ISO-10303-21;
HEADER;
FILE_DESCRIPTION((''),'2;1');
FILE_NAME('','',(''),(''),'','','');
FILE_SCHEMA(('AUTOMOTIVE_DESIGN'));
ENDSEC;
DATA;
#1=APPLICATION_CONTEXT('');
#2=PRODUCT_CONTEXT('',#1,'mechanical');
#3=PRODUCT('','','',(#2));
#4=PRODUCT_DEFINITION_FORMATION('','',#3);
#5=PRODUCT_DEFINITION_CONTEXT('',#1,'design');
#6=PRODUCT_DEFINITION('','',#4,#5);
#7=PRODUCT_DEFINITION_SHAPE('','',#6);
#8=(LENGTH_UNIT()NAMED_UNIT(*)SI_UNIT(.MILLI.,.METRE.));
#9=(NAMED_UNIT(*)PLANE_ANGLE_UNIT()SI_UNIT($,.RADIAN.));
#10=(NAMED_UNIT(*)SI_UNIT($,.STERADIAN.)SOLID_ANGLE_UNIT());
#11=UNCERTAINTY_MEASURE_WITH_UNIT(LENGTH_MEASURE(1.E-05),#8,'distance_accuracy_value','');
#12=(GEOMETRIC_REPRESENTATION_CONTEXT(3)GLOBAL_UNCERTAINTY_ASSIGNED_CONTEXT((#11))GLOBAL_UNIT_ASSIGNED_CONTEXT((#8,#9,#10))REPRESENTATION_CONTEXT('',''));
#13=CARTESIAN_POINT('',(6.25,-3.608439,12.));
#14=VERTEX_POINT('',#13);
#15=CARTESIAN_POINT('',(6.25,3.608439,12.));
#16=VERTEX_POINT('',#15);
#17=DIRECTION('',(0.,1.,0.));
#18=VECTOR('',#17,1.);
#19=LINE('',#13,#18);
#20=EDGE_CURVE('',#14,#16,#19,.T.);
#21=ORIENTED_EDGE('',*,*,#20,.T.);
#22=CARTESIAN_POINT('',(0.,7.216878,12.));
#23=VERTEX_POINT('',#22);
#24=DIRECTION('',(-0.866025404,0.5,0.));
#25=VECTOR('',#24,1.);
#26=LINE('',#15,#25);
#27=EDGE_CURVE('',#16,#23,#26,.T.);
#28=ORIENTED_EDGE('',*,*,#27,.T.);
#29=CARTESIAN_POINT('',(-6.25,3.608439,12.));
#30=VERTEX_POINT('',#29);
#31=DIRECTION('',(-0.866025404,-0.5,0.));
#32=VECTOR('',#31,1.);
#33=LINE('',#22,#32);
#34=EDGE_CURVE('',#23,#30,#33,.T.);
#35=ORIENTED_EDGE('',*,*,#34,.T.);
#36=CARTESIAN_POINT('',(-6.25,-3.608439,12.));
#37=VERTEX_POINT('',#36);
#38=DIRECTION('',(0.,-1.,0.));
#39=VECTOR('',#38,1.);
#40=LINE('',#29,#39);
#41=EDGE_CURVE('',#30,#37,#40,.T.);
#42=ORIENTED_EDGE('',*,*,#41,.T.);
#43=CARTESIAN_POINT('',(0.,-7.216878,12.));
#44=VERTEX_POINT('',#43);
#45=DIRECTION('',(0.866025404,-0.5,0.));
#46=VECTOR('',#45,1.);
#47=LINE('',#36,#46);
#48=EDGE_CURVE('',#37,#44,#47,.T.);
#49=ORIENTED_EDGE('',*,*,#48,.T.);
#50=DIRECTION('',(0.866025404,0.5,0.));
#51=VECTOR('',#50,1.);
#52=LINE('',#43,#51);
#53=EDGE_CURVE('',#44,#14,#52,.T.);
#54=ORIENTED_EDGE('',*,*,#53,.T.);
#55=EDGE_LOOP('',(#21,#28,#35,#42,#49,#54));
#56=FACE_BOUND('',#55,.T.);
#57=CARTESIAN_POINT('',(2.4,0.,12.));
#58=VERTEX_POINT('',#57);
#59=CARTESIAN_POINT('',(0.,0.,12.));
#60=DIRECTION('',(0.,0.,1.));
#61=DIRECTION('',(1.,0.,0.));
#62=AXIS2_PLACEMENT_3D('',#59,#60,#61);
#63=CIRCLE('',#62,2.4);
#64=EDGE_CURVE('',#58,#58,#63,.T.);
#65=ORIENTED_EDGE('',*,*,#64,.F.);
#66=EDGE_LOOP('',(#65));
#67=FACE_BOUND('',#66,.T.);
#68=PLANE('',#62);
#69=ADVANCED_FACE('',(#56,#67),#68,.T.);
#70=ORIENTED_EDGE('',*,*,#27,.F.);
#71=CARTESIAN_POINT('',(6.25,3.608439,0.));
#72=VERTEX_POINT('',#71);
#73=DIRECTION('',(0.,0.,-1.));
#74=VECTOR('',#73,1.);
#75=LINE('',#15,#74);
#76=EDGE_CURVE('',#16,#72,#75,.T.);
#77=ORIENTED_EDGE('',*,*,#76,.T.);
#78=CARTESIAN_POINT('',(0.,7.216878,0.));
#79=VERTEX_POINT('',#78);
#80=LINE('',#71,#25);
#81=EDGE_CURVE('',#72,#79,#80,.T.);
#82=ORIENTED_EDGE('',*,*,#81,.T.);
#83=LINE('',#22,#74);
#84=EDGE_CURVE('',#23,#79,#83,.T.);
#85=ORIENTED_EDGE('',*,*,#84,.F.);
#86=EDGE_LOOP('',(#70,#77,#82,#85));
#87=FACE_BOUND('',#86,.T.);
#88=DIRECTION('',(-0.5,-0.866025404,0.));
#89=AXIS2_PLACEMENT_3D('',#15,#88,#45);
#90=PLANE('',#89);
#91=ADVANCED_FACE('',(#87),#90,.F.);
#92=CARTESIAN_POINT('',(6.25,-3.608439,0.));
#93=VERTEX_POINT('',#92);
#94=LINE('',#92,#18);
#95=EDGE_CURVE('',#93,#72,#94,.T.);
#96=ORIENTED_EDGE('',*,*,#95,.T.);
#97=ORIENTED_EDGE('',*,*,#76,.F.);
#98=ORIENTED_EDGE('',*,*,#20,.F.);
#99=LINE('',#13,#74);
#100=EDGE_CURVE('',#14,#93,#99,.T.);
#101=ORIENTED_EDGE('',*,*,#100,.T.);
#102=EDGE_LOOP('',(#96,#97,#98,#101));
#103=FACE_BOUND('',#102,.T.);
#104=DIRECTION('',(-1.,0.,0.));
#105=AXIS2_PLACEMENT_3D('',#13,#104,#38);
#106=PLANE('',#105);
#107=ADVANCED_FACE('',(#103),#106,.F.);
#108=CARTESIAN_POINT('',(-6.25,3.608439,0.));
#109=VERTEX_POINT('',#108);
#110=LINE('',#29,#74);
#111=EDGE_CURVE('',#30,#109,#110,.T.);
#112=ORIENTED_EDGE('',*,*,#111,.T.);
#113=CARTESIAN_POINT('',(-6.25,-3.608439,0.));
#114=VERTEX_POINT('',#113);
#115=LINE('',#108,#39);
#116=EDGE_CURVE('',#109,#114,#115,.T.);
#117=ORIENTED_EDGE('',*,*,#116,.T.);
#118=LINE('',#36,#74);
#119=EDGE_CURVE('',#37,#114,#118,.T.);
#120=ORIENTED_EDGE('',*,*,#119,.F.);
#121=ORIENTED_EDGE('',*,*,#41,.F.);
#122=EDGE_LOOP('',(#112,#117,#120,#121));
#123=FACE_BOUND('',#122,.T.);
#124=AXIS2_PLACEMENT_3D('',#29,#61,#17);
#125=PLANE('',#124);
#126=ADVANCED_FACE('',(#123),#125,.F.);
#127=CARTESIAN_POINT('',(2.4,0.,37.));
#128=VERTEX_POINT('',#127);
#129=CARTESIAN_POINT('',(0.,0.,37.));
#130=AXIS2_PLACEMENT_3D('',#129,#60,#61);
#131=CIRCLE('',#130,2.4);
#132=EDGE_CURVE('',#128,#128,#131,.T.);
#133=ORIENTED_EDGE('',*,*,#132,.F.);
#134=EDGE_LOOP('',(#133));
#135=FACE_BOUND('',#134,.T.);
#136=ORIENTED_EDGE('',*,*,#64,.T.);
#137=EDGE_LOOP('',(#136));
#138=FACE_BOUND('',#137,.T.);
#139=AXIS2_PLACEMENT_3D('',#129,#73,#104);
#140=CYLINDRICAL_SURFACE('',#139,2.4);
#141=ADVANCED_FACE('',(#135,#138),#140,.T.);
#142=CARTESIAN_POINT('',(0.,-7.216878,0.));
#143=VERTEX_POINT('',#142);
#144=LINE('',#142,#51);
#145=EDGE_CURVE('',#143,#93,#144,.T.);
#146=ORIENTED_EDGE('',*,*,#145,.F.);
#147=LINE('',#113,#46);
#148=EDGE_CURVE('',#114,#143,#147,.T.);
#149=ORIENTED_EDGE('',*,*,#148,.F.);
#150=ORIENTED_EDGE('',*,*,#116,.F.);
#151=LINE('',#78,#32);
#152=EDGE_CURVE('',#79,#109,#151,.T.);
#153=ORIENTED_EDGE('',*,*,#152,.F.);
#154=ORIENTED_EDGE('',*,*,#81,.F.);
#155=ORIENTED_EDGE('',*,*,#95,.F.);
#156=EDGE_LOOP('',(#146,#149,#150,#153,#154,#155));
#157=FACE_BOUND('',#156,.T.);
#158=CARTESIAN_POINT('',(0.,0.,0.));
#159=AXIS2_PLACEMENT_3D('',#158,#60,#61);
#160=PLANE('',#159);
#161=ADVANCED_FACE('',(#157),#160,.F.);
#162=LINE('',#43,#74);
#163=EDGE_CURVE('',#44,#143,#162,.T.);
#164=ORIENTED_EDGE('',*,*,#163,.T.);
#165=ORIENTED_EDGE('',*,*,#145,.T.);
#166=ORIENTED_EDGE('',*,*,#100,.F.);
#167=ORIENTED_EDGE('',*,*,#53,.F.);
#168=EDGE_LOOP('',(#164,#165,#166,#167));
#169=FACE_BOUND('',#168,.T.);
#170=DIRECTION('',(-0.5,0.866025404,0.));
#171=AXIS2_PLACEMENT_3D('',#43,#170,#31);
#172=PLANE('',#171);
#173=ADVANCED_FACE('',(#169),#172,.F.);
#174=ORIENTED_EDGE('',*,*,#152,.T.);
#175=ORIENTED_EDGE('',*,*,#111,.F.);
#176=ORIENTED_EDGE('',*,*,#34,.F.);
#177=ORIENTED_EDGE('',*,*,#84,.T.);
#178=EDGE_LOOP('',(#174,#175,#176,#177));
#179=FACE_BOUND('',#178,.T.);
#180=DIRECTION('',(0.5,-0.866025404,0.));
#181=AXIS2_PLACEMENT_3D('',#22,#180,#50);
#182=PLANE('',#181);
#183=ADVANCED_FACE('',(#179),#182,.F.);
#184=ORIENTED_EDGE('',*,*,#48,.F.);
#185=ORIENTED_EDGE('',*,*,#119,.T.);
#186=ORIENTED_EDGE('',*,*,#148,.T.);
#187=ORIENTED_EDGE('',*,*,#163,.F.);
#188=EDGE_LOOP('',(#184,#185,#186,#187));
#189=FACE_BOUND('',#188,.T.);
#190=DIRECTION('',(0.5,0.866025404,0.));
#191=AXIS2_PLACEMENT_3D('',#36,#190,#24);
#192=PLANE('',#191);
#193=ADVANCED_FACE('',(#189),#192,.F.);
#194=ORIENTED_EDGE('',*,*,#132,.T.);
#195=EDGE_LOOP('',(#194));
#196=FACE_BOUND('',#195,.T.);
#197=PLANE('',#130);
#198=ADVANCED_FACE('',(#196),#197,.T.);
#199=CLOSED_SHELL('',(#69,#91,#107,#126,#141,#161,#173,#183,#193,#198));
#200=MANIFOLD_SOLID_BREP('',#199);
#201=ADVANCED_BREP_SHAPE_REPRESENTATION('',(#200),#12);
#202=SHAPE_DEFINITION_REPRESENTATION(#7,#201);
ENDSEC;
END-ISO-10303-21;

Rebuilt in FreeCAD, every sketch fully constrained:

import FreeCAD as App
import Part
import Sketcher
from FreeCAD import Vector
Q = App.Units.Quantity


def add_polygon(sketch, points):
    """Adds a closed chain of lines whose ends are joined by coincident constraints."""
    first, n = sketch.GeometryCount, len(points)
    for a, b in zip(points, points[1:] + points[:1]):
        sketch.addGeometry(Part.LineSegment(App.Vector(*a, 0), App.Vector(*b, 0)), False)
    for i in range(n):
        sketch.addConstraint(Sketcher.Constraint("Coincident", first + i, 2, first + (i + 1) % n, 1))

doc = App.newDocument("Part")
body = doc.addObject("PartDesign::Body", "Body")

sketch1 = body.newObject("Sketcher::SketchObject", "Sketch")
sketch1.AttachmentSupport = (doc.getObject("XY_Plane"), [""])
sketch1.MapMode = "FlatFace"
add_polygon(sketch1, [(0, 7), (-6, 4), (-6, -4), (0, -7), (6, -4), (6, 4)])
sketch1.addConstraint([
    Sketcher.Constraint("Vertical", 1),
    Sketcher.Constraint("Vertical", 4),
    Sketcher.Constraint("Symmetric", 0, 2, 3, 2, -1, 1),
    Sketcher.Constraint("Symmetric", 2, 2, 5, 2, -1, 1),
    Sketcher.Constraint("PointOnObject", 2, 2, -2),
    Sketcher.Constraint("Parallel", 2, 5),
    Sketcher.Constraint("Horizontal", 1, 2, 3, 2),
    Sketcher.Constraint("Angle", 0, Q("-150 deg")),
    Sketcher.Constraint("DistanceX", 1, 2, 3, 2, Q("12.5 mm")),
    Sketcher.Constraint("DistanceY", 1, 2, 1, 1, Q("7.216878 mm")),
])
pad1 = body.newObject("PartDesign::Pad", "Pad")
pad1.Profile = sketch1
pad1.Length = 12

sketch2 = body.newObject("Sketcher::SketchObject", "Sketch001")
sketch2.AttachmentSupport = (doc.getObject("XY_Plane"), [""])
sketch2.MapMode = "FlatFace"
sketch2.AttachmentOffset = App.Placement(Vector(0, 0, 12), App.Rotation())
sketch2.addGeometry(Part.Circle(Vector(0, 0, 0), Vector(0, 0, 1), 2.4), False)
sketch2.addConstraint([
    Sketcher.Constraint("Coincident", 0, 3, -1, 1),
    Sketcher.Constraint("Diameter", 0, Q("4.8 mm")),
])
pad2 = body.newObject("PartDesign::Pad", "Pad001")
pad2.Profile = sketch2
pad2.Length = 25

doc.recompute()
